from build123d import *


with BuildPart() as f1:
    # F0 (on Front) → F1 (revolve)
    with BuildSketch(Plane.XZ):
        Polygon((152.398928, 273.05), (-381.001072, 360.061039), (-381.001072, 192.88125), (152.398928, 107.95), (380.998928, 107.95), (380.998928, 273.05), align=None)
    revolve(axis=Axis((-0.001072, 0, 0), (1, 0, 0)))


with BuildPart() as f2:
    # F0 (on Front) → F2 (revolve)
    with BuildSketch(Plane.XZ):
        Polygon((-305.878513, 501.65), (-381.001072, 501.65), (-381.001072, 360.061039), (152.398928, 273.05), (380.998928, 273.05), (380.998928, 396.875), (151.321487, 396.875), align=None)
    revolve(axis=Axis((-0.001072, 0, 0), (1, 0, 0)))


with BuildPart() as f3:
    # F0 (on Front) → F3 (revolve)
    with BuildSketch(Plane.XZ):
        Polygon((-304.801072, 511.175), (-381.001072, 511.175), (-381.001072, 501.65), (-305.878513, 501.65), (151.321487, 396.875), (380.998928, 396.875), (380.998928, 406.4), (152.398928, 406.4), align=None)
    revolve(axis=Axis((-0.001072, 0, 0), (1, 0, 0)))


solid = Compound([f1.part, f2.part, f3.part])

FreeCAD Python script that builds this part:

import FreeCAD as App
import Part
import Sketcher
from FreeCAD import Vector
Q = App.Units.Quantity

doc = App.newDocument("Part")
params = doc.addObject("Spreadsheet::Sheet", "Params")
for row, (alias, value) in enumerate([
    ("sketch1_width", "9 in"),
    ("sketch1_height", "6.5 in"),
    ("revolution_angle", "360 deg"),
    ("sketch2_width", "9 in"),
    ("sketch2_height", "4.875 in"),
    ("revolution2_angle", "360 deg"),
    ("sketch3_width", "3 in"),
    ("sketch3_width2", "9 in"),
    ("sketch3_height", "0.375 in"),
    ("revolution3_angle", "360 deg"),
], start=1):
    params.set(f"A{row}", alias)
    params.set(f"B{row}", "=" + value)
    params.setAlias(f"B{row}", alias)

body = doc.addObject("PartDesign::Body", "Body")

sketch1 = body.newObject("Sketcher::SketchObject", "Sketch")
sketch1.AttachmentSupport = (doc.getObject("XZ_Plane"), [""])
sketch1.MapMode = "FlatFace"
sketch1.addGeometry([
    Part.LineSegment(Vector(152.398928, 273.05, 0), Vector(-381.001072, 360.061039, 0)),
    Part.LineSegment(Vector(-381.001072, 360.061039, 0), Vector(-381.001072, 192.88125, 0)),
    Part.LineSegment(Vector(-381.001072, 192.88125, 0), Vector(152.398928, 107.95, 0)),
    Part.LineSegment(Vector(152.398928, 107.95, 0), Vector(380.998928, 107.95, 0)),
    Part.LineSegment(Vector(380.998928, 107.95, 0), Vector(380.998928, 273.05, 0)),
    Part.LineSegment(Vector(380.998928, 273.05, 0), Vector(152.398928, 273.05, 0)),
], False)
sketch1.addConstraint([
    Sketcher.Constraint("Coincident", 0, 2, 1, 1),
    Sketcher.Constraint("Coincident", 1, 2, 2, 1),
    Sketcher.Constraint("Coincident", 2, 2, 3, 1),
    Sketcher.Constraint("Coincident", 3, 2, 4, 1),
    Sketcher.Constraint("Coincident", 4, 2, 5, 1),
    Sketcher.Constraint("Coincident", 5, 2, 0, 1),
    Sketcher.Constraint("Vertical", 1),
    Sketcher.Constraint("Horizontal", 3),
    Sketcher.Constraint("Vertical", 4),
    Sketcher.Constraint("Horizontal", 5),
    Sketcher.Constraint("Vertical", 2, 2, 5, 2),
    Sketcher.Constraint("DistanceX", 3, 1, 3, 2, Q("9 in")),
    Sketcher.Constraint("DistanceY", 4, 1, 4, 2, Q("6.5 in")),
    Sketcher.Constraint("DistanceX", 1, 2, 2, 2, Q("21 in")),
    Sketcher.Constraint("DistanceY", -1, 1, 2, 2, Q("4.25 in")),
    Sketcher.Constraint("DistanceY", -1, 1, 1, 2, Q("7.59375 in")),
    Sketcher.Constraint("DistanceY", 1, 2, 1, 1, 167.179789),
    Sketcher.Constraint("DistanceX", 0, 2, -1, 1, 381.001072),
])
sketch1.setExpression("Constraints[11]", "Params.sketch1_width")
sketch1.setExpression("Constraints[12]", "Params.sketch1_height")
revolution = body.newObject("PartDesign::Revolution", "Revolution")
revolution.Profile = sketch1
revolution.ReferenceAxis = (sketch1, ["H_Axis"])
revolution.setExpression("Angle", "Params.revolution_angle")
body2 = doc.addObject("PartDesign::Body", "Body001")

sketch2 = body2.newObject("Sketcher::SketchObject", "Sketch001")
sketch2.AttachmentSupport = (doc.getObject("XZ_Plane001"), [""])
sketch2.MapMode = "FlatFace"
sketch2.addGeometry([
    Part.LineSegment(Vector(-305.878513, 501.65, 0), Vector(-381.001072, 501.65, 0)),
    Part.LineSegment(Vector(-381.001072, 501.65, 0), Vector(-381.001072, 360.061039, 0)),
    Part.LineSegment(Vector(-381.001072, 360.061039, 0), Vector(152.398928, 273.05, 0)),
    Part.LineSegment(Vector(152.398928, 273.05, 0), Vector(380.998928, 273.05, 0)),
    Part.LineSegment(Vector(380.998928, 273.05, 0), Vector(380.998928, 396.875, 0)),
    Part.LineSegment(Vector(380.998928, 396.875, 0), Vector(151.321487, 396.875, 0)),
    Part.LineSegment(Vector(151.321487, 396.875, 0), Vector(-305.878513, 501.65, 0)),
], False)
sketch2.addConstraint([
    Sketcher.Constraint("Coincident", 0, 2, 1, 1),
    Sketcher.Constraint("Coincident", 1, 2, 2, 1),
    Sketcher.Constraint("Coincident", 2, 2, 3, 1),
    Sketcher.Constraint("Coincident", 3, 2, 4, 1),
    Sketcher.Constraint("Coincident", 4, 2, 5, 1),
    Sketcher.Constraint("Coincident", 5, 2, 6, 1),
    Sketcher.Constraint("Coincident", 6, 2, 0, 1),
    Sketcher.Constraint("Horizontal", 0),
    Sketcher.Constraint("Vertical", 1),
    Sketcher.Constraint("Horizontal", 3),
    Sketcher.Constraint("Vertical", 4),
    Sketcher.Constraint("Horizontal", 5),
    Sketcher.Constraint("DistanceX", 3, 1, 3, 2, Q("9 in")),
    Sketcher.Constraint("DistanceX", 1, 2, 2, 2, Q("21 in")),
    Sketcher.Constraint("DistanceY", 2, 2, 0, 2, Q("9 in")),
    Sketcher.Constraint("DistanceX", 6, 2, 5, 2, Q("18 in")),
    Sketcher.Constraint("DistanceY", 4, 1, 4, 2, Q("4.875 in")),
    Sketcher.Constraint("DistanceY", -1, 1, 0, 2, Q("19.75 in")),
    Sketcher.Constraint("DistanceX", 0, 2, 0, 1, 75.122559),
    Sketcher.Constraint("DistanceY", 1, 2, 1, 1, 141.588961),
    Sketcher.Constraint("DistanceX", 0, 2, -1, 1, 381.001072),
])
sketch2.setExpression("Constraints[12]", "Params.sketch2_width")
sketch2.setExpression("Constraints[16]", "Params.sketch2_height")
revolution2 = body2.newObject("PartDesign::Revolution", "Revolution001")
revolution2.Profile = sketch2
revolution2.ReferenceAxis = (sketch2, ["H_Axis"])
revolution2.setExpression("Angle", "Params.revolution2_angle")
body3 = doc.addObject("PartDesign::Body", "Body002")

sketch3 = body3.newObject("Sketcher::SketchObject", "Sketch002")
sketch3.AttachmentSupport = (doc.getObject("XZ_Plane002"), [""])
sketch3.MapMode = "FlatFace"
sketch3.addGeometry([
    Part.LineSegment(Vector(-304.801072, 511.175, 0), Vector(-381.001072, 511.175, 0)),
    Part.LineSegment(Vector(-381.001072, 511.175, 0), Vector(-381.001072, 501.65, 0)),
    Part.LineSegment(Vector(-381.001072, 501.65, 0), Vector(-305.878513, 501.65, 0)),
    Part.LineSegment(Vector(-305.878513, 501.65, 0), Vector(151.321487, 396.875, 0)),
    Part.LineSegment(Vector(151.321487, 396.875, 0), Vector(380.998928, 396.875, 0)),
    Part.LineSegment(Vector(380.998928, 396.875, 0), Vector(380.998928, 406.4, 0)),
    Part.LineSegment(Vector(380.998928, 406.4, 0), Vector(152.398928, 406.4, 0)),
    Part.LineSegment(Vector(152.398928, 406.4, 0), Vector(-304.801072, 511.175, 0)),
], False)
sketch3.addConstraint([
    Sketcher.Constraint("Coincident", 0, 2, 1, 1),
    Sketcher.Constraint("Coincident", 1, 2, 2, 1),
    Sketcher.Constraint("Coincident", 2, 2, 3, 1),
    Sketcher.Constraint("Coincident", 3, 2, 4, 1),
    Sketcher.Constraint("Coincident", 4, 2, 5, 1),
    Sketcher.Constraint("Coincident", 5, 2, 6, 1),
    Sketcher.Constraint("Coincident", 6, 2, 7, 1),
    Sketcher.Constraint("Coincident", 7, 2, 0, 1),
    Sketcher.Constraint("Horizontal", 0),
    Sketcher.Constraint("Vertical", 1),
    Sketcher.Constraint("Horizontal", 2),
    Sketcher.Constraint("Horizontal", 4),
    Sketcher.Constraint("Vertical", 5),
    Sketcher.Constraint("Horizontal", 6),
    Sketcher.Constraint("Parallel", 3, 7),
    Sketcher.Constraint("Equal", 1, 5),
    Sketcher.Constraint("DistanceX", 0, 2, 0, 1, Q("3 in")),
    Sketcher.Constraint("DistanceX", 6, 2, 6, 1, Q("9 in")),
    Sketcher.Constraint("DistanceY", -1, 1, 5, 2, Q("16 in")),
    Sketcher.Constraint("DistanceX", 2, 2, 3, 2, Q("18 in")),
    Sketcher.Constraint("DistanceY", 3, 2, 0, 2, Q("4.5 in")),
    Sketcher.Constraint("DistanceY", 1, 2, 1, 1, Q("0.375 in")),
    Sketcher.Constraint("DistanceX", 2, 1, 2, 2, 75.122559),
    Sketcher.Constraint("DistanceX", 0, 2, -1, 1, 381.001072),
])
sketch3.setExpression("Constraints[16]", "Params.sketch3_width")
sketch3.setExpression("Constraints[17]", "Params.sketch3_width2")
sketch3.setExpression("Constraints[21]", "Params.sketch3_height")
revolution3 = body3.newObject("PartDesign::Revolution", "Revolution002")
revolution3.Profile = sketch3
revolution3.ReferenceAxis = (sketch3, ["H_Axis"])
revolution3.setExpression("Angle", "Params.revolution3_angle")

doc.recompute()
